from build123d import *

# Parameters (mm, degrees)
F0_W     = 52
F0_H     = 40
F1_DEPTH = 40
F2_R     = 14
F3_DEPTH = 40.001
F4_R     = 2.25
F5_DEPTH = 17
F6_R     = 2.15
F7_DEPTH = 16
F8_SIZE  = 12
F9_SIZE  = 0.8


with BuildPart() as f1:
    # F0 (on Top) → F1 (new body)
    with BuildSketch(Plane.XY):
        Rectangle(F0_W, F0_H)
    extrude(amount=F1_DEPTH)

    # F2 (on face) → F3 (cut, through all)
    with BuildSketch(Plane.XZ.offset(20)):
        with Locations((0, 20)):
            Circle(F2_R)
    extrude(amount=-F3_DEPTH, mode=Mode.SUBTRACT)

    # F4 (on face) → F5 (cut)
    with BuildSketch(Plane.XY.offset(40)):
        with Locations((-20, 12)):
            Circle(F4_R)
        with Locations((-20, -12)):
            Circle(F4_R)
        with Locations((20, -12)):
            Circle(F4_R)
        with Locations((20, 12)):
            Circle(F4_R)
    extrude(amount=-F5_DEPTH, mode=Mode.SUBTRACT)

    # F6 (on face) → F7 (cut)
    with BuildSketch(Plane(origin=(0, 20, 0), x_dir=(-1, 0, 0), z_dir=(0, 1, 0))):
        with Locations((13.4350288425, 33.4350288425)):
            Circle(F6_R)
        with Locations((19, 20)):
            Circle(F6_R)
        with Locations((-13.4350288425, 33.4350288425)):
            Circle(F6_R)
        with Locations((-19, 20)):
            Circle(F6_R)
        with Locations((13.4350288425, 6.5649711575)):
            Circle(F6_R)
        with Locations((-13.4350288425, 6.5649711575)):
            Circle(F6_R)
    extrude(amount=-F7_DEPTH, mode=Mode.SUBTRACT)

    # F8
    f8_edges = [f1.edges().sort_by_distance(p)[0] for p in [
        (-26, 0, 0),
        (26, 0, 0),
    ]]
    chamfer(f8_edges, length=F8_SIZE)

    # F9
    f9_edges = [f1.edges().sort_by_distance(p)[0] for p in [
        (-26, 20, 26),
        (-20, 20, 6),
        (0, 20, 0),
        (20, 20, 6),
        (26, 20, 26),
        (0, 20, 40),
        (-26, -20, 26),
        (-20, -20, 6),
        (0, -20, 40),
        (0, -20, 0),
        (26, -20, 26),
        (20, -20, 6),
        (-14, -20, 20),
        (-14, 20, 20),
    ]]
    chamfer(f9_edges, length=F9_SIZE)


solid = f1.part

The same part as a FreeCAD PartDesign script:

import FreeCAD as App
import Part
import Sketcher

V = App.Vector
Q = App.Units.Quantity


def edges_at(feature, points):
    """Names of the edges that pass closest to the given points."""
    edges = feature.Shape.Edges
    near = lambda p: min(range(len(edges)), key=lambda i: edges[i].distToShape(Part.Vertex(*p))[0])
    return sorted({f"Edge{near(p) + 1}" for p in points})


def add_polygon(sketch, points):
    """Adds a closed chain of lines whose ends are joined by coincident constraints."""
    first, n = sketch.GeometryCount, len(points)
    for a, b in zip(points, points[1:] + points[:1]):
        sketch.addGeometry(Part.LineSegment(App.Vector(*a, 0), App.Vector(*b, 0)), False)
    for i in range(n):
        sketch.addConstraint(Sketcher.Constraint("Coincident", first + i, 2, first + (i + 1) % n, 1))

doc = App.newDocument("Part")
body = doc.addObject("PartDesign::Body", "Body")

# Sketch on XY plane
sketch1 = body.newObject("Sketcher::SketchObject", "Sketch")
sketch1.AttachmentSupport = (doc.getObject("XY_Plane"), [""])
sketch1.MapMode = "FlatFace"
add_polygon(sketch1, [(-26, 20), (-26, -20), (26, -20), (26, 20)])  # lines 0-3
sketch1.addConstraint([
    Sketcher.Constraint("Vertical", 0),
    Sketcher.Constraint("Horizontal", 1),
    Sketcher.Constraint("Vertical", 2),
    Sketcher.Constraint("Horizontal", 3),
    Sketcher.Constraint("Symmetric", 0, 2, 2, 2, -1, 1),
    Sketcher.Constraint("DistanceX", 1, 1, 1, 2, Q("52 mm")),
    Sketcher.Constraint("DistanceY", 0, 2, 0, 1, Q("40 mm")),
])
pad1 = body.newObject("PartDesign::Pad", "Pad")
pad1.Profile = sketch1
pad1.Length = 40

# Sketch on XZ plane
sketch2 = body.newObject("Sketcher::SketchObject", "Sketch001")
sketch2.AttachmentSupport = (doc.getObject("XZ_Plane"), [""])
sketch2.MapMode = "FlatFace"
sketch2.AttachmentOffset = App.Placement(V(0, 0, 20), App.Rotation())
sketch2.addGeometry(Part.Circle(V(0, 20, 0), V(0, 0, 1), 14), False)
sketch2.addConstraint([
    Sketcher.Constraint("PointOnObject", 0, 3, -2),
    Sketcher.Constraint("Diameter", 0, Q("28 mm")),
    Sketcher.Constraint("DistanceY", -1, 1, 0, 3, Q("20 mm")),
])
pocket1 = body.newObject("PartDesign::Pocket", "Pocket")
pocket1.Profile = sketch2
pocket1.Type = "ThroughAll"

# Sketch on XY plane
sketch3 = body.newObject("Sketcher::SketchObject", "Sketch002")
sketch3.AttachmentSupport = (doc.getObject("XY_Plane"), [""])
sketch3.MapMode = "FlatFace"
sketch3.AttachmentOffset = App.Placement(V(0, 0, 40), App.Rotation())
sketch3.addGeometry([
    Part.Circle(V(-20, 12, 0), V(0, 0, 1), 2.25),
    Part.Circle(V(-20, -12, 0), V(0, 0, 1), 2.25),
    Part.Circle(V(20, -12, 0), V(0, 0, 1), 2.25),
    Part.Circle(V(20, 12, 0), V(0, 0, 1), 2.25),
], False)
sketch3.addConstraint([
    Sketcher.Constraint("Equal", 0, 1),
    Sketcher.Constraint("Equal", 1, 2),
    Sketcher.Constraint("Equal", 2, 3),
    Sketcher.Constraint("Symmetric", 0, 3, 2, 3, -1, 1),
    Sketcher.Constraint("Symmetric", 1, 3, 3, 3, -1, 1),
    Sketcher.Constraint("Symmetric", 1, 3, 2, 3, -2),
    Sketcher.Constraint("Diameter", 0, Q("4.5 mm")),
    Sketcher.Constraint("DistanceX", 0, 3, -1, 1, Q("20 mm")),
    Sketcher.Constraint("DistanceY", -1, 1, 0, 3, Q("12 mm")),
])
pocket2 = body.newObject("PartDesign::Pocket", "Pocket001")
pocket2.Profile = sketch3
pocket2.Length = 17

# Sketch on XZ plane
sketch4 = body.newObject("Sketcher::SketchObject", "Sketch003")
sketch4.AttachmentSupport = (doc.getObject("XZ_Plane"), [""])
sketch4.MapMode = "FlatFace"
sketch4.AttachmentOffset = App.Placement(V(0, 0, -20), App.Rotation())
sketch4.addGeometry([
    Part.Circle(V(-13.435029, 33.435029, 0), V(0, 0, 1), 2.15),  # 0
    Part.Circle(V(-19, 20, 0), V(0, 0, 1), 2.15),  # 1
    Part.Circle(V(13.435029, 33.435029, 0), V(0, 0, 1), 2.15),  # 2
    Part.Circle(V(19, 20, 0), V(0, 0, 1), 2.15),  # 3
    Part.Circle(V(-13.435029, 6.564971, 0), V(0, 0, 1), 2.15),  # 4
    Part.Circle(V(13.435029, 6.564971, 0), V(0, 0, 1), 2.15),  # 5
], False)
sketch4.addConstraint([
    Sketcher.Constraint("Equal", 0, 1),
    Sketcher.Constraint("Equal", 1, 2),
    Sketcher.Constraint("Equal", 2, 3),
    Sketcher.Constraint("Equal", 3, 4),
    Sketcher.Constraint("Equal", 4, 5),
    Sketcher.Constraint("Symmetric", 0, 3, 2, 3, -2),
    Sketcher.Constraint("Symmetric", 1, 3, 3, 3, -2),
    Sketcher.Constraint("Symmetric", 4, 3, 5, 3, -2),
    Sketcher.Constraint("Vertical", 0, 3, 4, 3),
    Sketcher.Constraint("Diameter", 0, Q("4.3 mm")),
    Sketcher.Constraint("DistanceX", 1, 3, -1, 1, Q("19 mm")),
    Sketcher.Constraint("DistanceY", -1, 1, 1, 3, Q("20 mm")),
    Sketcher.Constraint("DistanceX", 0, 3, -1, 1, Q("13.435029 mm")),
    Sketcher.Constraint("DistanceY", -1, 1, 0, 3, Q("33.435029 mm")),
    Sketcher.Constraint("DistanceY", -1, 1, 4, 3, Q("6.564971 mm")),
])
pocket3 = body.newObject("PartDesign::Pocket", "Pocket002")
pocket3.Profile = sketch4
pocket3.Length = 16
pocket3.Reversed = True
doc.recompute()

chamfer = body.newObject("PartDesign::Chamfer", "Chamfer")
chamfer.Base = (pocket3, edges_at(pocket3, [(-26, 0, 0), (26, 0, 0)]))
chamfer.Size = 12
doc.recompute()

chamfer2 = body.newObject("PartDesign::Chamfer", "Chamfer001")
chamfer2.Base = (chamfer, edges_at(chamfer, [
    (-26, 20, 26),
    (-20, 20, 6),
    (0, 20, 0),
    (20, 20, 6),
    (26, 20, 26),
    (0, 20, 40),
    (-26, -20, 26),
    (-20, -20, 6),
    (0, -20, 40),
    (0, -20, 0),
    (26, -20, 26),
    (20, -20, 6),
    (-14, -20, 20),
    (-14, 20, 20),
]))
chamfer2.Size = 0.8

doc.recompute()
